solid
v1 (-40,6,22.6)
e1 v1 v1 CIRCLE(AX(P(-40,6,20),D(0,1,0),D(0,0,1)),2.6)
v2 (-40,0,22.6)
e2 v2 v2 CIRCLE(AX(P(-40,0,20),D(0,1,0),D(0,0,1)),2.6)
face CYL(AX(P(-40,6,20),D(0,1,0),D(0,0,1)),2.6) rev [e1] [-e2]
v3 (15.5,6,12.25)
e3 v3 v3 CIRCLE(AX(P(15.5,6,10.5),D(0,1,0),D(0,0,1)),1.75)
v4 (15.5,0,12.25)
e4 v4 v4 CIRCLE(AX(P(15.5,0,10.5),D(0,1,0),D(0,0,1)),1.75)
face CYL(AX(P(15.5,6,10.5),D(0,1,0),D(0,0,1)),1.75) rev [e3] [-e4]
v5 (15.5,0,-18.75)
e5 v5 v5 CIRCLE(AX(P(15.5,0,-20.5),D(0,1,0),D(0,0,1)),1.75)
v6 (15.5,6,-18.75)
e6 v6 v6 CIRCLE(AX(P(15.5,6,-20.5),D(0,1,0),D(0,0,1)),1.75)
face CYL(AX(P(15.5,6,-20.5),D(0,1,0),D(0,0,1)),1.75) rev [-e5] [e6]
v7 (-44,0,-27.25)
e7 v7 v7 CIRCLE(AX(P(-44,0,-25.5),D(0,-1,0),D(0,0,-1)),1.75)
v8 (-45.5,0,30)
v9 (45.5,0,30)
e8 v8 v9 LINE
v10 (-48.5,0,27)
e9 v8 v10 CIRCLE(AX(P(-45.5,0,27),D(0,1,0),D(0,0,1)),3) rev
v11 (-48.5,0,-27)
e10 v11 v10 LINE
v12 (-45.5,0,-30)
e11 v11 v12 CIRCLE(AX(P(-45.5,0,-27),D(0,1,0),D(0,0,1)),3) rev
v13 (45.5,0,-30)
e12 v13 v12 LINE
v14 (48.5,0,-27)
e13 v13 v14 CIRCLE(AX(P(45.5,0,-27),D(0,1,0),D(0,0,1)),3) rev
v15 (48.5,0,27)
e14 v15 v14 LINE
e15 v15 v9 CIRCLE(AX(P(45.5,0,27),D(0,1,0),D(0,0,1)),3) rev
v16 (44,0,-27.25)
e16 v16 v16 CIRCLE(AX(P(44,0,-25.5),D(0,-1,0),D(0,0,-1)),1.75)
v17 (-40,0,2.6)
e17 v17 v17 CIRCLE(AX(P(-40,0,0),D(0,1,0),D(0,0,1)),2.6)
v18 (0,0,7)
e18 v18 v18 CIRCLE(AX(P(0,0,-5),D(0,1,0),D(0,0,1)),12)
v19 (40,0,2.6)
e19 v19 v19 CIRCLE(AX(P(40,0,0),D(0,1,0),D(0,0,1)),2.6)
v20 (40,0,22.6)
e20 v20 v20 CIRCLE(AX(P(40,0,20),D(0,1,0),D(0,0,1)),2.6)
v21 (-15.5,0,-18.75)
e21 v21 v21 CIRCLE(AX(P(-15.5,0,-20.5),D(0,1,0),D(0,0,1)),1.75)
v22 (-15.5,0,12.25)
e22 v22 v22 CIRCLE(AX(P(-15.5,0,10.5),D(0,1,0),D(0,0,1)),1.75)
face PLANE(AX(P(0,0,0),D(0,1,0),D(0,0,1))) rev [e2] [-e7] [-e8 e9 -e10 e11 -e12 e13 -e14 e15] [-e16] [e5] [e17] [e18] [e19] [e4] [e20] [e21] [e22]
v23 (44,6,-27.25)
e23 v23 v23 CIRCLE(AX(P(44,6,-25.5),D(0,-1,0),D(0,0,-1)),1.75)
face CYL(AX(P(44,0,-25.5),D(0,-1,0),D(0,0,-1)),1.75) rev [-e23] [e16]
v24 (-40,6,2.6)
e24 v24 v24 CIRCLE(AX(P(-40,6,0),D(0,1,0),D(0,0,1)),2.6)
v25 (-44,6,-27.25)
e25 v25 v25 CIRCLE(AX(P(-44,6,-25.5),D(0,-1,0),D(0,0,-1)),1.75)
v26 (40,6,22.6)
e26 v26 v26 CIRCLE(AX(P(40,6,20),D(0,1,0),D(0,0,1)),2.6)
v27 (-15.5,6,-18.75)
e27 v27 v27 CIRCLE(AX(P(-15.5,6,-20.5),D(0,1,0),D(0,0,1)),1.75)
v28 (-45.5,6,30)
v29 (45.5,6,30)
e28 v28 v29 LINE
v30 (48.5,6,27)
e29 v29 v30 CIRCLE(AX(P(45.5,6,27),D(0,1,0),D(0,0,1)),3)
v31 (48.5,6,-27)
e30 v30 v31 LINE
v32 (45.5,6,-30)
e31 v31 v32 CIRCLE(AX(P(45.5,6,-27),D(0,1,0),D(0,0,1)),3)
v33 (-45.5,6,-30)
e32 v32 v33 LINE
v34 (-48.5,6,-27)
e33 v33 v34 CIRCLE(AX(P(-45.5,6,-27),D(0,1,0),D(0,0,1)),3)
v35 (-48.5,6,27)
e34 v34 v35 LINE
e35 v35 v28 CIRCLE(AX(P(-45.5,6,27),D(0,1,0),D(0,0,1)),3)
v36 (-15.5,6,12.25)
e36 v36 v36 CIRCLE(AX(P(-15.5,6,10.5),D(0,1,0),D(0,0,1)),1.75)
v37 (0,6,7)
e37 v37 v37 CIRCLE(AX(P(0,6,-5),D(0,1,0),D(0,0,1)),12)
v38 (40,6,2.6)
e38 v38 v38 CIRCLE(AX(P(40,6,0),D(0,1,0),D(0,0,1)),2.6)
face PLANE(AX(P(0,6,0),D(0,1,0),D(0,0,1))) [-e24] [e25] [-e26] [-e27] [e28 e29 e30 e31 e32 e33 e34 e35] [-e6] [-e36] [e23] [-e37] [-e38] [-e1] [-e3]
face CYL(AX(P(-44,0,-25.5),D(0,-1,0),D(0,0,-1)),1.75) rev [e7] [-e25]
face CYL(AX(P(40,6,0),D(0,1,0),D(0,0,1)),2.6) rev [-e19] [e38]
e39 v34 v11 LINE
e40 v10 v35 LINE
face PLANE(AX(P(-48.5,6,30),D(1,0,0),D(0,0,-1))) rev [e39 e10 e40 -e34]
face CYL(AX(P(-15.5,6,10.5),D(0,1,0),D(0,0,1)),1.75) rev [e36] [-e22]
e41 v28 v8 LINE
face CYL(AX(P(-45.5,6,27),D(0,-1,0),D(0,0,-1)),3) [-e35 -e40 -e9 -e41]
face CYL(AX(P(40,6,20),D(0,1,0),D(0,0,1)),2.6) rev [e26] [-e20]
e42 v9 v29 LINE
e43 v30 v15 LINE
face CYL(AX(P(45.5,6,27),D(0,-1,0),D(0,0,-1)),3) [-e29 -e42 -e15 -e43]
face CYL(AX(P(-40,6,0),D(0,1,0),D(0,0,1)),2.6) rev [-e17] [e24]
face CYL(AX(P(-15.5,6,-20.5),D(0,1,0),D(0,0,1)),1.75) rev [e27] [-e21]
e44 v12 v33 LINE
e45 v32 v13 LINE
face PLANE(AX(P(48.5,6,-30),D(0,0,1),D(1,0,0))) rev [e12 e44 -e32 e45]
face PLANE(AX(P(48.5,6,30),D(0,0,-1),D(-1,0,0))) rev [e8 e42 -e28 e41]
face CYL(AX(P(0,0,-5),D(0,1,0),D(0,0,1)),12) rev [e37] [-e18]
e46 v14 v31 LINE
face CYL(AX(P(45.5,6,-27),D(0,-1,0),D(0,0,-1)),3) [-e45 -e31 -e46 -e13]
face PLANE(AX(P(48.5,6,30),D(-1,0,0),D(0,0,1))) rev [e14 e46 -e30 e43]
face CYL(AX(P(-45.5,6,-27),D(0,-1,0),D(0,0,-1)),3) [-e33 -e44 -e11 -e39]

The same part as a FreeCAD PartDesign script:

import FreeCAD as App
import Part
import Sketcher

V = App.Vector


def edges_at(feature, points):
    """Names of the edges that pass closest to the given points."""
    edges = feature.Shape.Edges
    near = lambda p: min(range(len(edges)), key=lambda i: edges[i].distToShape(Part.Vertex(*p))[0])
    return sorted({f"Edge{near(p) + 1}" for p in points})


def add_polygon(sketch, points):
    """Adds a closed chain of lines whose ends are joined by coincident constraints."""
    first, n = sketch.GeometryCount, len(points)
    for a, b in zip(points, points[1:] + points[:1]):
        sketch.addGeometry(Part.LineSegment(App.Vector(*a, 0), App.Vector(*b, 0)), False)
    for i in range(n):
        sketch.addConstraint(Sketcher.Constraint("Coincident", first + i, 2, first + (i + 1) % n, 1))

doc = App.newDocument("Part")
body = doc.addObject("PartDesign::Body", "Body")

sketch1 = body.newObject("Sketcher::SketchObject", "Sketch")
sketch1.AttachmentSupport = (doc.getObject("XZ_Plane"), [""])
sketch1.MapMode = "FlatFace"
add_polygon(sketch1, [(-48, -30), (-48, 30), (48, 30), (48, -30)])
sketch1.addConstraint(Sketcher.Constraint("Vertical", 0))
sketch1.addConstraint(Sketcher.Constraint("Horizontal", 1))
sketch1.addConstraint(Sketcher.Constraint("Vertical", 2))
sketch1.addConstraint(Sketcher.Constraint("Horizontal", 3))
sketch1.addConstraint(Sketcher.Constraint("Symmetric", 0, 2, 2, 2, -1, 1))
sketch1.addConstraint(Sketcher.Constraint("DistanceX", 1, 1, 1, 2, 97.0))
sketch1.addConstraint(Sketcher.Constraint("DistanceY", 0, 1, 0, 2, 60.0))
pad1 = body.newObject("PartDesign::Pad", "Pad")
pad1.Profile = sketch1
pad1.Length = 6
pad1.Reversed = True

sketch2 = body.newObject("Sketcher::SketchObject", "Sketch001")
sketch2.AttachmentSupport = (doc.getObject("XZ_Plane"), [""])
sketch2.MapMode = "FlatFace"
sketch2.AttachmentOffset = App.Placement(V(0, 0, -6), App.Rotation())
sketch2.addGeometry(Part.Circle(V(0, -5, 0), V(0, 0, 1), 12), False)
sketch2.addConstraint(Sketcher.Constraint("PointOnObject", 0, 3, -2))
sketch2.addConstraint(Sketcher.Constraint("Diameter", 0, 24.0))
sketch2.addConstraint(Sketcher.Constraint("DistanceY", 0, 3, -1, 1, 5.0))
pocket1 = body.newObject("PartDesign::Pocket", "Pocket")
pocket1.Profile = sketch2
pocket1.Type = "ThroughAll"
pocket1.Reversed = True
doc.recompute()

fillet = body.newObject("PartDesign::Fillet", "Fillet")
fillet.Base = (pocket1, edges_at(pocket1, [
    (-48.5, 3, -30),
    (48.5, 3, -30),
    (48.5, 3, 30),
    (-48.5, 3, 30),
]))
fillet.Radius = 3

sketch3 = body.newObject("Sketcher::SketchObject", "Sketch002")
sketch3.AttachmentSupport = (doc.getObject("XZ_Plane"), [""])
sketch3.MapMode = "FlatFace"
sketch3.addGeometry(Part.Circle(V(44, -25.5, 0), V(0, 0, 1), 1.8), False)
sketch3.addGeometry(Part.Circle(V(-44, -25.5, 0), V(0, 0, 1), 1.8), False)
sketch3.addConstraint(Sketcher.Constraint("Equal", 0, 1))
sketch3.addConstraint(Sketcher.Constraint("Symmetric", 0, 3, 1, 3, -2))
sketch3.addConstraint(Sketcher.Constraint("Diameter", 0, 3.5))
sketch3.addConstraint(Sketcher.Constraint("DistanceX", -1, 1, 0, 3, 44.0))
sketch3.addConstraint(Sketcher.Constraint("DistanceY", 0, 3, -1, 1, 25.5))
doc.recompute()
hole = body.newObject("PartDesign::Hole", "Hole")
hole.Profile = sketch3
hole.ThreadType = "None"
hole.Diameter = 3.5
hole.DepthType = "ThroughAll"

sketch4 = body.newObject("Sketcher::SketchObject", "Sketch003")
sketch4.AttachmentSupport = (doc.getObject("XZ_Plane"), [""])
sketch4.MapMode = "FlatFace"
sketch4.AttachmentOffset = App.Placement(V(0, 0, -6), App.Rotation())
sketch4.addGeometry(Part.Circle(V(-40, 0, 0), V(0, 0, 1), 2.6), False)
sketch4.addGeometry(Part.Circle(V(-40, 20, 0), V(0, 0, 1), 2.6), False)
sketch4.addGeometry(Part.Circle(V(40, 0, 0), V(0, 0, 1), 2.6), False)
sketch4.addGeometry(Part.Circle(V(40, 20, 0), V(0, 0, 1), 2.6), False)
sketch4.addConstraint(Sketcher.Constraint("Equal", 0, 1))
sketch4.addConstraint(Sketcher.Constraint("Equal", 1, 2))
sketch4.addConstraint(Sketcher.Constraint("Equal", 2, 3))
sketch4.addConstraint(Sketcher.Constraint("Symmetric", 0, 3, 2, 3, -1, 1))
sketch4.addConstraint(Sketcher.Constraint("Symmetric", 1, 3, 3, 3, -2))
sketch4.addConstraint(Sketcher.Constraint("PointOnObject", 0, 3, -1))
sketch4.addConstraint(Sketcher.Constraint("Vertical", 0, 3, 1, 3))
sketch4.addConstraint(Sketcher.Constraint("Diameter", 0, 5.2))
sketch4.addConstraint(Sketcher.Constraint("DistanceX", 0, 3, -1, 1, 40.0))
sketch4.addConstraint(Sketcher.Constraint("DistanceY", -1, 1, 1, 3, 20.0))
doc.recompute()
hole2 = body.newObject("PartDesign::Hole", "Hole001")
hole2.Profile = sketch4
hole2.ThreadType = "None"
hole2.Diameter = 5.2
hole2.DepthType = "ThroughAll"
hole2.Reversed = True

sketch5 = body.newObject("Sketcher::SketchObject", "Sketch004")
sketch5.AttachmentSupport = (doc.getObject("XZ_Plane"), [""])
sketch5.MapMode = "FlatFace"
sketch5.AttachmentOffset = App.Placement(V(0, 0, -6), App.Rotation())
sketch5.addGeometry(Part.Circle(V(-15.5, -20.5, 0), V(0, 0, 1), 1.8), False)
sketch5.addGeometry(Part.Circle(V(-15.5, 10.5, 0), V(0, 0, 1), 1.8), False)
sketch5.addGeometry(Part.Circle(V(15.5, 10.5, 0), V(0, 0, 1), 1.8), False)
sketch5.addGeometry(Part.Circle(V(15.5, -20.5, 0), V(0, 0, 1), 1.8), False)
sketch5.addConstraint(Sketcher.Constraint("Equal", 0, 1))
sketch5.addConstraint(Sketcher.Constraint("Equal", 1, 2))
sketch5.addConstraint(Sketcher.Constraint("Equal", 2, 3))
sketch5.addConstraint(Sketcher.Constraint("Symmetric", 1, 3, 2, 3, -2))
sketch5.addConstraint(Sketcher.Constraint("Symmetric", 0, 3, 3, 3, -2))
sketch5.addConstraint(Sketcher.Constraint("Vertical", 0, 3, 1, 3))
sketch5.addConstraint(Sketcher.Constraint("Diameter", 0, 3.5))
sketch5.addConstraint(Sketcher.Constraint("DistanceY", 0, 3, 1, 3, 31.0))
sketch5.addConstraint(Sketcher.Constraint("DistanceX", 1, 3, 2, 3, 31.0))
sketch5.addConstraint(Sketcher.Constraint("DistanceY", 0, 3, -1, 1, 20.5))
doc.recompute()
hole3 = body.newObject("PartDesign::Hole", "Hole002")
hole3.Profile = sketch5
hole3.ThreadType = "None"
hole3.Diameter = 3.5
hole3.DepthType = "ThroughAll"
hole3.Reversed = True

doc.recompute()
